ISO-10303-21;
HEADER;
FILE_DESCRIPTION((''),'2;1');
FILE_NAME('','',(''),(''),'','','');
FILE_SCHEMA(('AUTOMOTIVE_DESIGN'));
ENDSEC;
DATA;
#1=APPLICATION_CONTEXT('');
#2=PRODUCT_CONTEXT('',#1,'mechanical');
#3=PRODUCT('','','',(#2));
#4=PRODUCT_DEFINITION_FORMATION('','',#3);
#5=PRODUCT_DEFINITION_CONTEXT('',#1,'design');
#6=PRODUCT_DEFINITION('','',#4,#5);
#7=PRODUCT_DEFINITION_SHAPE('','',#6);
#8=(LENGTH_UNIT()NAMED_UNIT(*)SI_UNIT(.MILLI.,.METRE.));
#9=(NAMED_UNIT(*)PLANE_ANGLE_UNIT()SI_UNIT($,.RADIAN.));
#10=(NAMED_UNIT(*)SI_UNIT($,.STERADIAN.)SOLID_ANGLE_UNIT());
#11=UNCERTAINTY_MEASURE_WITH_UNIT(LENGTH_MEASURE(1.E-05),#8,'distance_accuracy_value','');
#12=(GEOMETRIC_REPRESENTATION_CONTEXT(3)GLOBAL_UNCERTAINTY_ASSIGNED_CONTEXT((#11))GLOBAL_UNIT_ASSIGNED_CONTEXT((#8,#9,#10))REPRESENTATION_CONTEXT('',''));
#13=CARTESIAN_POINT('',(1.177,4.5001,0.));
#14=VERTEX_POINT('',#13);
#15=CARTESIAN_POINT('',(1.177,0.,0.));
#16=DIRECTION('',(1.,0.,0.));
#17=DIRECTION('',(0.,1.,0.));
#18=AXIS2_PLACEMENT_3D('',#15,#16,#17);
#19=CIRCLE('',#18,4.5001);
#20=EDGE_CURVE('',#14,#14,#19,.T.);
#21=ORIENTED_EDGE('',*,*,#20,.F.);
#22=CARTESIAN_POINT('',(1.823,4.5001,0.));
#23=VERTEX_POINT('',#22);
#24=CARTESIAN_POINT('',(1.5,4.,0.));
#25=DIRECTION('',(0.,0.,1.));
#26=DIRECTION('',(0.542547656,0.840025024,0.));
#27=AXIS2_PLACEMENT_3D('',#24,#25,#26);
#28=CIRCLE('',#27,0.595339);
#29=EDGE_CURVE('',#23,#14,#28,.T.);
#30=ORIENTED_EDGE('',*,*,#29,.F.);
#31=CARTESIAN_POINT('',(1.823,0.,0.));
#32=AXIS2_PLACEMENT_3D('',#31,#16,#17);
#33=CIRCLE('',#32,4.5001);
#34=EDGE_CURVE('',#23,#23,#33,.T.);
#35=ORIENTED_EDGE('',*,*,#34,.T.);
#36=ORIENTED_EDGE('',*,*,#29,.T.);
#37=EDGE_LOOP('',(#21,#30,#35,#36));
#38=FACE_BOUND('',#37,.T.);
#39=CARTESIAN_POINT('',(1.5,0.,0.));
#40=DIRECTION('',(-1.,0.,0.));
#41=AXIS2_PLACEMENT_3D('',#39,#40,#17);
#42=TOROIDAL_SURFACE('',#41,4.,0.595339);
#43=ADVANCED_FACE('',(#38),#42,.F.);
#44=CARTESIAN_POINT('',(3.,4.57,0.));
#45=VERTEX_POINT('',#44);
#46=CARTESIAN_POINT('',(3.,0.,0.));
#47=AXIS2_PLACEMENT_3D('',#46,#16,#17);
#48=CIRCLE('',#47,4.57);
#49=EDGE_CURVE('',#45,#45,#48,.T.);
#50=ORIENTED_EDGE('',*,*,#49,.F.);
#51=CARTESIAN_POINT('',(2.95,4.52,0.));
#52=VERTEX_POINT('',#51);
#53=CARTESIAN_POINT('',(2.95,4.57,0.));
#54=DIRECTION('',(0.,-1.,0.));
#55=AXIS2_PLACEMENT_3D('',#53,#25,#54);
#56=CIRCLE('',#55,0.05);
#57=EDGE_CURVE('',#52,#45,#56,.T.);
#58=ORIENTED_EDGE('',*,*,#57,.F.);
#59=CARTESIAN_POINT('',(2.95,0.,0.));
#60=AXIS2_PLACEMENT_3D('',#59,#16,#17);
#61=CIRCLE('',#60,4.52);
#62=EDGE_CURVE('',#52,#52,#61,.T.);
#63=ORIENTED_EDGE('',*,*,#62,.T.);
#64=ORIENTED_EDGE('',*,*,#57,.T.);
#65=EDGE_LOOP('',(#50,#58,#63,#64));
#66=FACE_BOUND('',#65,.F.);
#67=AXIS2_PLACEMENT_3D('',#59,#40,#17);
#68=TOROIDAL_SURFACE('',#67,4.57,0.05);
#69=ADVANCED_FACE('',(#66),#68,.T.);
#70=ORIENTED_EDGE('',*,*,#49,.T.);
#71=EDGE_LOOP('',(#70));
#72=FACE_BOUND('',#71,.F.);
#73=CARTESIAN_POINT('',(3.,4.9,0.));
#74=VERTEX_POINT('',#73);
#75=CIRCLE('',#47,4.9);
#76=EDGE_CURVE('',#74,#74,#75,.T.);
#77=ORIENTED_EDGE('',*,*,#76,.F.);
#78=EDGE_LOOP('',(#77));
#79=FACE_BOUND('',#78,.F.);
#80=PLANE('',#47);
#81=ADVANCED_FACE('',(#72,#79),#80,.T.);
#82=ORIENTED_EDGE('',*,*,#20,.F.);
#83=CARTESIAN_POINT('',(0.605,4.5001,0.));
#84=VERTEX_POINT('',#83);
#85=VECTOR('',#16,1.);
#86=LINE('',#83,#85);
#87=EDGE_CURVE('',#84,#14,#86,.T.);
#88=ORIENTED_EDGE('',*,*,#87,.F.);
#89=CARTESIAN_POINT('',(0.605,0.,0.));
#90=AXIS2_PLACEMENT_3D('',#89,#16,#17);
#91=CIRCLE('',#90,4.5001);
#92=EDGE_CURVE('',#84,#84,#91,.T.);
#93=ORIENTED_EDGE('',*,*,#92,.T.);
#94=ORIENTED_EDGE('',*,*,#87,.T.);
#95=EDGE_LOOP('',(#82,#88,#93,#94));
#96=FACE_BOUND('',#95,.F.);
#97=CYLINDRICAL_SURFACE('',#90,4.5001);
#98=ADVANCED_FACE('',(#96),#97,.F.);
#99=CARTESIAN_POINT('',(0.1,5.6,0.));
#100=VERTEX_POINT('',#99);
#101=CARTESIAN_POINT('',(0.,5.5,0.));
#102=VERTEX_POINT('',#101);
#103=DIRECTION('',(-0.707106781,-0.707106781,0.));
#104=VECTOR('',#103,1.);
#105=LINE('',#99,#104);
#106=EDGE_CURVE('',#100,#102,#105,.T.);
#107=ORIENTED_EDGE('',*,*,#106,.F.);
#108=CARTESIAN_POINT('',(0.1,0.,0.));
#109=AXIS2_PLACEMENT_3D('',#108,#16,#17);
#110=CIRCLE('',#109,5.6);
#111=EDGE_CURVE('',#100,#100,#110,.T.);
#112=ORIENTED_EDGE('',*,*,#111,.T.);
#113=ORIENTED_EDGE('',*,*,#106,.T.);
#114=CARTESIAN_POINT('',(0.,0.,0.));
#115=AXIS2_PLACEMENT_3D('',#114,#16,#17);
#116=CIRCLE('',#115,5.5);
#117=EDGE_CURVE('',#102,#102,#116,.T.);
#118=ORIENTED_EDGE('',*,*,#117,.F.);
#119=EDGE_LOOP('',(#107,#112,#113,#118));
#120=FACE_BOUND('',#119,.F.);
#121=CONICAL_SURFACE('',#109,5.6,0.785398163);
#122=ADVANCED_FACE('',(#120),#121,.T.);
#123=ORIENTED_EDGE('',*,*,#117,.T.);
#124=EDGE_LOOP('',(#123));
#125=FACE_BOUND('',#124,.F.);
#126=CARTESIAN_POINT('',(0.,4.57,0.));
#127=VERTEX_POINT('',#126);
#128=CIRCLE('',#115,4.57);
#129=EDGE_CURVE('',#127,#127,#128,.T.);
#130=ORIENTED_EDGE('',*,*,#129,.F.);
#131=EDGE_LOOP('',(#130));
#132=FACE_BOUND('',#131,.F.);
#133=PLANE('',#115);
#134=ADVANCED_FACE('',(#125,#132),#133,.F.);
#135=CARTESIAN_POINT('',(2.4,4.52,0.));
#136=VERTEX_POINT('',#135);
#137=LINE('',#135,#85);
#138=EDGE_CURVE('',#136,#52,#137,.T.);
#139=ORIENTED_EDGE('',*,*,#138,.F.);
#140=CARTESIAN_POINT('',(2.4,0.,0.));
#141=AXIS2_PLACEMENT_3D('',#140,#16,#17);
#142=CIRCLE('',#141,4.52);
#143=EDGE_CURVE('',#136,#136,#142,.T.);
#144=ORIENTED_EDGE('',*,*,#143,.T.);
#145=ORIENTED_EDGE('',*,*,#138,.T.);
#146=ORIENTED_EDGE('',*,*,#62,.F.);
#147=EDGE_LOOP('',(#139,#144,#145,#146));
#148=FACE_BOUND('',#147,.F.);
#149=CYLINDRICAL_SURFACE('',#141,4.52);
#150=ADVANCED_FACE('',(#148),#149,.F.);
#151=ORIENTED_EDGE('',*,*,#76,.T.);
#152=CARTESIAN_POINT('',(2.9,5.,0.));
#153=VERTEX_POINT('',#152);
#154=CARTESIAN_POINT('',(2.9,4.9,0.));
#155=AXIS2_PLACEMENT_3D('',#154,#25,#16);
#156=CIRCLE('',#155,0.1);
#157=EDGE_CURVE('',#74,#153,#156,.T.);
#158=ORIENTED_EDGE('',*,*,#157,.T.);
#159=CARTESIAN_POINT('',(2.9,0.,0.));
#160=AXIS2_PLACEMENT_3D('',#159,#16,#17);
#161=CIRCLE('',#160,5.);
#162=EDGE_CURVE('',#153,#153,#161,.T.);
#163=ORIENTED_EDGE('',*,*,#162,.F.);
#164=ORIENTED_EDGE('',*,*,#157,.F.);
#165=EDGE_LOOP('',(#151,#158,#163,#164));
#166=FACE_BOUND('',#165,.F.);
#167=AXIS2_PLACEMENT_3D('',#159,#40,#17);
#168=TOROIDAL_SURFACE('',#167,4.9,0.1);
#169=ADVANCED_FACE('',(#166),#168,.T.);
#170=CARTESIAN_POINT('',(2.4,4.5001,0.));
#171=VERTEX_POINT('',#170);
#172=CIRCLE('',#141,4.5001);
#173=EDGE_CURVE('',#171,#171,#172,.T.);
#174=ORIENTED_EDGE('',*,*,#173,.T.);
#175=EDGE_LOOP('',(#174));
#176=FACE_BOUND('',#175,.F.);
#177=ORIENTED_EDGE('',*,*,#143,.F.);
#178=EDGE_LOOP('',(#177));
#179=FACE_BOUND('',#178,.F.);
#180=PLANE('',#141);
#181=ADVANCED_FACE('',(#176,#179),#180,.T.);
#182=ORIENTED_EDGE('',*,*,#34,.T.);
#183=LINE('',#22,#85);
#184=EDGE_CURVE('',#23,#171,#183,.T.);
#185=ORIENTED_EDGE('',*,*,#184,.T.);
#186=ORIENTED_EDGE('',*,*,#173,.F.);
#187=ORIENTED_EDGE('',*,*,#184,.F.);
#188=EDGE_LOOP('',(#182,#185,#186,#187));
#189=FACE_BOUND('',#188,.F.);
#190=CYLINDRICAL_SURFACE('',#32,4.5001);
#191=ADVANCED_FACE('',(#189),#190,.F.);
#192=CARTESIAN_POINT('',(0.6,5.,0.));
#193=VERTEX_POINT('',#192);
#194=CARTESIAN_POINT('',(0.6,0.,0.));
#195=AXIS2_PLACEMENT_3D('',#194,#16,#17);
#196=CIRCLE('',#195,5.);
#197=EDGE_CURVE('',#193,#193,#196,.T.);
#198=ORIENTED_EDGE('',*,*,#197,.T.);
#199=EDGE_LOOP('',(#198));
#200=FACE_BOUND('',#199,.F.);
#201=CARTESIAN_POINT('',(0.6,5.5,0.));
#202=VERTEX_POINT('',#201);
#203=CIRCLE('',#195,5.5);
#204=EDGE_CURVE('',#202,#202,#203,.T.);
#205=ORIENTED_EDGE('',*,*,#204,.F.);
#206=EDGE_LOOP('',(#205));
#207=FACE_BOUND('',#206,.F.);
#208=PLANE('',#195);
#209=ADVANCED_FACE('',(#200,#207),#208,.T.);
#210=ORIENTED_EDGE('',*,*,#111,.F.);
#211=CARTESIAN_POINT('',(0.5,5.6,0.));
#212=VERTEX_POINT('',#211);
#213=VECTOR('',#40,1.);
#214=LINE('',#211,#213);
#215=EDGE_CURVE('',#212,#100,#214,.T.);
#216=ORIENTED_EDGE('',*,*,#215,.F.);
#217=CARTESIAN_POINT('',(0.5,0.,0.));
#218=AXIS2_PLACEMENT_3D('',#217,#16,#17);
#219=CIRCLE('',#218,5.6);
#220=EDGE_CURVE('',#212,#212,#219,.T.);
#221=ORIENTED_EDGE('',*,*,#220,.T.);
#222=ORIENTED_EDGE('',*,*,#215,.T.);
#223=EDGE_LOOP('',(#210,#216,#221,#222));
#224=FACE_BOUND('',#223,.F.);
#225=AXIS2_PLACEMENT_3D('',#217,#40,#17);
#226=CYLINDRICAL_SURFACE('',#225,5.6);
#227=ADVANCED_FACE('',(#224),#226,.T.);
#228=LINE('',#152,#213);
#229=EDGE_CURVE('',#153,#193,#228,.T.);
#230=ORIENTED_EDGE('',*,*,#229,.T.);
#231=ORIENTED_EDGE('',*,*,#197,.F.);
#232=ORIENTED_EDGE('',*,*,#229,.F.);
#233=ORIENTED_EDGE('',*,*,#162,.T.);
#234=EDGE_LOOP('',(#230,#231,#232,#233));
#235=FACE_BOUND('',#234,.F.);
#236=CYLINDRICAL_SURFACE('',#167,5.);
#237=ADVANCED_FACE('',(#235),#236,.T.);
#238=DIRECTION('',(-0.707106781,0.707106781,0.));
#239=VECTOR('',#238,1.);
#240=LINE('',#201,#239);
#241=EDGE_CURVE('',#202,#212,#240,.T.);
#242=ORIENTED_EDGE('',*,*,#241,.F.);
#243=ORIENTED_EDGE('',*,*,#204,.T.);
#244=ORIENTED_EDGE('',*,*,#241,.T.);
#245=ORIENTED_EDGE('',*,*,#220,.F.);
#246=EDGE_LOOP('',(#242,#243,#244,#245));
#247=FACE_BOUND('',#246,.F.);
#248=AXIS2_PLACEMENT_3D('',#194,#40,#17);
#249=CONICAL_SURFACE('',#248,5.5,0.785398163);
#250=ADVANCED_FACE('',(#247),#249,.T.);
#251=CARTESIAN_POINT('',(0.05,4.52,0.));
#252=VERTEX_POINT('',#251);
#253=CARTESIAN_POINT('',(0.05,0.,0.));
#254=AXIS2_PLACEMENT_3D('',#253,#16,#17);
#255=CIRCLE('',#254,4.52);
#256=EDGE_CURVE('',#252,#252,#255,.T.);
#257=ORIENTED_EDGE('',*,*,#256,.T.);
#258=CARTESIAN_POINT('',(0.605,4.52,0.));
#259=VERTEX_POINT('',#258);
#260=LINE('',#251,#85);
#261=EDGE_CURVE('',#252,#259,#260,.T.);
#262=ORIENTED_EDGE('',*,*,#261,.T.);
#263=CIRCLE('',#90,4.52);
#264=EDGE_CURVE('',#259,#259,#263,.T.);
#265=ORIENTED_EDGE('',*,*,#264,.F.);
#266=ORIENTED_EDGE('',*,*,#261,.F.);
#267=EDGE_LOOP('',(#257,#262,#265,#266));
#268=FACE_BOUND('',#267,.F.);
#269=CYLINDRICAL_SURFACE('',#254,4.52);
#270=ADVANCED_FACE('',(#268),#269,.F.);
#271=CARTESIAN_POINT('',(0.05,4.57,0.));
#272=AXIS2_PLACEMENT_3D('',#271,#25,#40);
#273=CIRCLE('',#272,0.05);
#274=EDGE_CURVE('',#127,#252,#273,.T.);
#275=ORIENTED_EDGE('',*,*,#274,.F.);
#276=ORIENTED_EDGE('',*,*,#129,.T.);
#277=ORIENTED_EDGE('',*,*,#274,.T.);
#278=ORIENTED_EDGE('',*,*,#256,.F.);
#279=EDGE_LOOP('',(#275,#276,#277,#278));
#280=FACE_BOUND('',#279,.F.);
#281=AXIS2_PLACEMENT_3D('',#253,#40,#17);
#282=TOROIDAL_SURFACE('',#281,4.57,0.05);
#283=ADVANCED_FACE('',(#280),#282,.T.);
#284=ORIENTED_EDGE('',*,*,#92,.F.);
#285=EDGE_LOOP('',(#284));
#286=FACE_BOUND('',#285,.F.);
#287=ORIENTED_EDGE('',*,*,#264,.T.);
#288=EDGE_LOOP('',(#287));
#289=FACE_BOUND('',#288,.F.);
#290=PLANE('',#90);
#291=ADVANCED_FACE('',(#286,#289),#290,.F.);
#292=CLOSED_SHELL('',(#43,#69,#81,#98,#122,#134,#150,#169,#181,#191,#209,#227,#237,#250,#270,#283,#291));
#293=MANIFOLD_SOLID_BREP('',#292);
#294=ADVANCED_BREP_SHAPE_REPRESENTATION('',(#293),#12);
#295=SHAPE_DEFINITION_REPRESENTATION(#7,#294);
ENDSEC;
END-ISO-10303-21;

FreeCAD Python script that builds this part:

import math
import FreeCAD as App
import Part
import Sketcher
from FreeCAD import Vector
Q = App.Units.Quantity

doc = App.newDocument("Part")
body = doc.addObject("PartDesign::Body", "Body")

sketch1 = doc.addObject("Sketcher::SketchObject", "Sketch")
body.addObject(sketch1)
sketch1.AttachmentSupport = (doc.XY_Plane, [""])
sketch1.MapMode = "FlatFace"
sketch1.addGeometry(Part.LineSegment(Vector(0.1, 5.6, 0), Vector(0, 5.5, 0)), False)
sketch1.addGeometry(Part.LineSegment(Vector(0, 5.5, 0), Vector(0, 4.57, 0)), False)
sketch1.addGeometry(Part.ArcOfCircle(Part.Circle(Vector(0.05, 4.57, 0), Vector(0, 0, 1), 0.05), math.radians(180), math.radians(270)), False)
sketch1.addGeometry(Part.LineSegment(Vector(0.05, 4.52, 0), Vector(0.605, 4.52, 0)), False)
sketch1.addGeometry(Part.LineSegment(Vector(0.605, 4.52, 0), Vector(0.605, 4.5, 0)), False)
sketch1.addGeometry(Part.LineSegment(Vector(0.605, 4.5, 0), Vector(1.177, 4.5, 0)), False)
sketch1.addGeometry(Part.ArcOfCircle(Part.Circle(Vector(1.5, 4, 0), Vector(0, 0, 1), 0.595), math.radians(57), math.radians(123)), False)
sketch1.addGeometry(Part.LineSegment(Vector(1.823, 4.5, 0), Vector(2.4, 4.5, 0)), False)
sketch1.addGeometry(Part.LineSegment(Vector(2.4, 4.5, 0), Vector(2.4, 4.52, 0)), False)
sketch1.addGeometry(Part.LineSegment(Vector(2.4, 4.52, 0), Vector(2.95, 4.52, 0)), False)
sketch1.addGeometry(Part.ArcOfCircle(Part.Circle(Vector(2.95, 4.57, 0), Vector(0, 0, 1), 0.05), math.radians(-90), math.radians(0)), False)
sketch1.addGeometry(Part.LineSegment(Vector(3, 4.57, 0), Vector(3, 4.9, 0)), False)
sketch1.addGeometry(Part.ArcOfCircle(Part.Circle(Vector(2.9, 4.9, 0), Vector(0, 0, 1), 0.1), math.radians(0), math.radians(90)), False)
sketch1.addGeometry(Part.LineSegment(Vector(2.9, 5, 0), Vector(0.6, 5, 0)), False)
sketch1.addGeometry(Part.LineSegment(Vector(0.6, 5, 0), Vector(0.6, 5.5, 0)), False)
sketch1.addGeometry(Part.LineSegment(Vector(0.6, 5.5, 0), Vector(0.5, 5.6, 0)), False)
sketch1.addGeometry(Part.LineSegment(Vector(0.5, 5.6, 0), Vector(0.1, 5.6, 0)), False)
sketch1.addConstraint(Sketcher.Constraint("Coincident", 0, 2, 1, 1))
sketch1.addConstraint(Sketcher.Constraint("Tangent", 1, 2, 2, 1))
sketch1.addConstraint(Sketcher.Constraint("Tangent", 2, 2, 3, 1))
sketch1.addConstraint(Sketcher.Constraint("Coincident", 3, 2, 4, 1))
sketch1.addConstraint(Sketcher.Constraint("Coincident", 4, 2, 5, 1))
sketch1.addConstraint(Sketcher.Constraint("Coincident", 5, 2, 6, 2))
sketch1.addConstraint(Sketcher.Constraint("Coincident", 6, 1, 7, 1))
sketch1.addConstraint(Sketcher.Constraint("Coincident", 7, 2, 8, 1))
sketch1.addConstraint(Sketcher.Constraint("Coincident", 8, 2, 9, 1))
sketch1.addConstraint(Sketcher.Constraint("Tangent", 9, 2, 10, 1))
sketch1.addConstraint(Sketcher.Constraint("Tangent", 10, 2, 11, 1))
sketch1.addConstraint(Sketcher.Constraint("Tangent", 11, 2, 12, 1))
sketch1.addConstraint(Sketcher.Constraint("Tangent", 12, 2, 13, 1))
sketch1.addConstraint(Sketcher.Constraint("Coincident", 13, 2, 14, 1))
sketch1.addConstraint(Sketcher.Constraint("Coincident", 14, 2, 15, 1))
sketch1.addConstraint(Sketcher.Constraint("Coincident", 15, 2, 16, 1))
sketch1.addConstraint(Sketcher.Constraint("Coincident", 16, 2, 0, 1))
sketch1.addConstraint(Sketcher.Constraint("Vertical", 1))
sketch1.addConstraint(Sketcher.Constraint("Horizontal", 3))
sketch1.addConstraint(Sketcher.Constraint("Vertical", 4))
sketch1.addConstraint(Sketcher.Constraint("Horizontal", 5))
sketch1.addConstraint(Sketcher.Constraint("Horizontal", 7))
sketch1.addConstraint(Sketcher.Constraint("Vertical", 8))
sketch1.addConstraint(Sketcher.Constraint("Horizontal", 9))
sketch1.addConstraint(Sketcher.Constraint("Vertical", 11))
sketch1.addConstraint(Sketcher.Constraint("Horizontal", 13))
sketch1.addConstraint(Sketcher.Constraint("Vertical", 14))
sketch1.addConstraint(Sketcher.Constraint("Horizontal", 16))
sketch1.addConstraint(Sketcher.Constraint("Equal", 2, 10))
sketch1.addConstraint(Sketcher.Constraint("PointOnObject", 0, 2, -2))
sketch1.addConstraint(Sketcher.Constraint("Perpendicular", 0, 15))
sketch1.addConstraint(Sketcher.Constraint("Horizontal", 2, 3, 10, 3))
sketch1.addConstraint(Sketcher.Constraint("Horizontal", 5, 2, 6, 1))
sketch1.addConstraint(Sketcher.Constraint("Horizontal", 0, 2, 14, 2))
sketch1.addConstraint(Sketcher.Constraint("Equal", 0, 15))
sketch1.addConstraint(Sketcher.Constraint("Radius", 12, Q("0.1 mm")))
sketch1.addConstraint(Sketcher.Constraint("Radius", 2, Q("0.05 mm")))
sketch1.addConstraint(Sketcher.Constraint("DistanceX", 13, 2, 13, 1, Q("2.3 mm")))
sketch1.addConstraint(Sketcher.Constraint("DistanceX", 16, 2, 16, 1, Q("0.4 mm")))
sketch1.addConstraint(Sketcher.Constraint("DistanceY", 14, 1, 14, 2, Q("0.5 mm")))
sketch1.addConstraint(Sketcher.Constraint("DistanceY", -1, 1, 6, 3, Q("4 mm")))
sketch1.addConstraint(Sketcher.Constraint("DistanceX", -1, 1, 10, 2, Q("3 mm")))
sketch1.addConstraint(Sketcher.Constraint("DistanceY", -1, 1, 12, 2, Q("5 mm")))
sketch1.addConstraint(Sketcher.Constraint("DistanceY", 4, 2, 14, 2, Q("1 mm")))
sketch1.addConstraint(Sketcher.Constraint("DistanceX", 9, 1, 9, 2, Q("0.55 mm")))
sketch1.addConstraint(Sketcher.Constraint("DistanceY", 1, 2, 1, 1, Q("0.93 mm")))
sketch1.addConstraint(Sketcher.Constraint("DistanceX", -1, 1, 6, 3, Q("1.5 mm")))
sketch1.addConstraint(Sketcher.Constraint("Radius", 6, Q("0.5953 mm")))
sketch1.addConstraint(Sketcher.Constraint("DistanceX", 3, 1, 3, 2, Q("0.555 mm")))
revolution = doc.addObject("PartDesign::Revolution", "Revolution")
body.addObject(revolution)
revolution.Profile = sketch1
revolution.ReferenceAxis = (sketch1, ["H_Axis"])
revolution.Angle = 360

doc.recompute()
